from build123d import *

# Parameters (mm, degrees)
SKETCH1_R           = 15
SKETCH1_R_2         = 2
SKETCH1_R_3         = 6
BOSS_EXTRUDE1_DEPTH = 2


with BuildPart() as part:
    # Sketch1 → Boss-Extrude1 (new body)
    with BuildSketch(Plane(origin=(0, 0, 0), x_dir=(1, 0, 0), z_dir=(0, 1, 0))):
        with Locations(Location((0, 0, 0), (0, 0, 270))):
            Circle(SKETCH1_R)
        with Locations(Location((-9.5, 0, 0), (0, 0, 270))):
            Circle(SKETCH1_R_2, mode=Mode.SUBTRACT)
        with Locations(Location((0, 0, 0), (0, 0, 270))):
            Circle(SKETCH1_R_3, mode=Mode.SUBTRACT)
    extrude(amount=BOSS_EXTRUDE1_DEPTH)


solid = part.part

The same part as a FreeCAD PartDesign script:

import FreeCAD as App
import Part
import Sketcher
from FreeCAD import Vector
Q = App.Units.Quantity

doc = App.newDocument("Part")
body = doc.addObject("PartDesign::Body", "Body")

# Sketch on XZ plane
sketch1 = doc.addObject("Sketcher::SketchObject", "Sketch")
body.addObject(sketch1)
sketch1.AttachmentSupport = (doc.XZ_Plane, [""])
sketch1.MapMode = "FlatFace"
sketch1.addGeometry(Part.Circle(Vector(0, 0, 0), Vector(0, 0, 1), 15), False)
sketch1.addGeometry(Part.Circle(Vector(-9.5, 0, 0), Vector(0, 0, 1), 2), False)
sketch1.addGeometry(Part.Circle(Vector(0, 0, 0), Vector(0, 0, 1), 6), False)
sketch1.addConstraint(Sketcher.Constraint("Coincident", 0, 3, -1, 1))
sketch1.addConstraint(Sketcher.Constraint("Coincident", 2, 3, -1, 1))
sketch1.addConstraint(Sketcher.Constraint("PointOnObject", 1, 3, -1))
sketch1.addConstraint(Sketcher.Constraint("Diameter", 0, Q("30 mm")))
sketch1.addConstraint(Sketcher.Constraint("Diameter", 1, Q("4 mm")))
sketch1.addConstraint(Sketcher.Constraint("Diameter", 2, Q("12 mm")))
sketch1.addConstraint(Sketcher.Constraint("DistanceX", 1, 3, -1, 1, Q("9.5 mm")))
pad1 = doc.addObject("PartDesign::Pad", "Pad")
body.addObject(pad1)
pad1.Profile = sketch1
pad1.Length = 2
pad1.Reversed = True

doc.recompute()
